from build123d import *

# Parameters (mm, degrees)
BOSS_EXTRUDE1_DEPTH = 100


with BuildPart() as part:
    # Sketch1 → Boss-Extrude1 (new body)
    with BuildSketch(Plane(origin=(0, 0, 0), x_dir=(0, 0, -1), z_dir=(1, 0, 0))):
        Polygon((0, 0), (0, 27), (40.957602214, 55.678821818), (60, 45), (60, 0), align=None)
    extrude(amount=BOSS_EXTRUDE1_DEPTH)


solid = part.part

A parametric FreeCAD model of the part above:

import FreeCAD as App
import Part
import Sketcher

V = App.Vector
Q = App.Units.Quantity

doc = App.newDocument("Part")
body = doc.addObject("PartDesign::Body", "Body")

# Sketch on YZ plane
sketch1 = doc.addObject("Sketcher::SketchObject", "Sketch")
body.addObject(sketch1)
sketch1.AttachmentSupport = (doc.YZ_Plane, [""])
sketch1.MapMode = "FlatFace"
sketch1.addGeometry(Part.LineSegment(V(27, 0, 0), V(0, 0, 0)), False)
sketch1.addGeometry(Part.LineSegment(V(0, 0, 0), V(0, -60, 0)), False)
sketch1.addGeometry(Part.LineSegment(V(0, -60, 0), V(45, -60, 0)), False)
sketch1.addGeometry(Part.LineSegment(V(45, -60, 0), V(56, -41, 0)), False)
sketch1.addGeometry(Part.LineSegment(V(56, -41, 0), V(27, 0, 0)), False)
sketch1.addConstraint(Sketcher.Constraint("Coincident", 0, 2, 1, 1))
sketch1.addConstraint(Sketcher.Constraint("Coincident", 1, 2, 2, 1))
sketch1.addConstraint(Sketcher.Constraint("Coincident", 2, 2, 3, 1))
sketch1.addConstraint(Sketcher.Constraint("Coincident", 3, 2, 4, 1))
sketch1.addConstraint(Sketcher.Constraint("Coincident", 4, 2, 0, 1))
sketch1.addConstraint(Sketcher.Constraint("Horizontal", 0))
sketch1.addConstraint(Sketcher.Constraint("Vertical", 1))
sketch1.addConstraint(Sketcher.Constraint("Horizontal", 2))
sketch1.addConstraint(Sketcher.Constraint("Coincident", 0, 2, -1, 1))
sketch1.addConstraint(Sketcher.Constraint("DistanceX", 0, 2, 0, 1, 27.0))
sketch1.addConstraint(Sketcher.Constraint("DistanceX", 2, 1, 2, 2, 45.0))
sketch1.addConstraint(Sketcher.Constraint("DistanceY", 1, 2, 1, 1, 60.0))
sketch1.addConstraint(Sketcher.Constraint("Angle", 4, Q("125 deg")))
sketch1.addConstraint(Sketcher.Constraint("Distance", 4, 50.0))
pad1 = doc.addObject("PartDesign::Pad", "Pad")
body.addObject(pad1)
pad1.Profile = sketch1
pad1.Length = 100

doc.recompute()
